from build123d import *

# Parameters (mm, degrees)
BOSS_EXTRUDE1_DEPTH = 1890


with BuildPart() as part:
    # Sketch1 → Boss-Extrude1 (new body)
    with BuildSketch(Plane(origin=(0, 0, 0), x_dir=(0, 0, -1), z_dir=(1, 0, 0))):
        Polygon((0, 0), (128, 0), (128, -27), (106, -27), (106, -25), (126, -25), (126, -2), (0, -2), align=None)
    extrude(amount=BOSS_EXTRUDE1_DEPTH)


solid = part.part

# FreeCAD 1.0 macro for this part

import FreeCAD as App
import Part
import Sketcher
from FreeCAD import Vector

doc = App.newDocument("Part")
body = doc.addObject("PartDesign::Body", "Body")

# Sketch on YZ plane
sketch1 = doc.addObject("Sketcher::SketchObject", "Sketch")
body.addObject(sketch1)
sketch1.AttachmentSupport = (doc.YZ_Plane, [""])
sketch1.MapMode = "FlatFace"
sketch1.addGeometry([
    Part.LineSegment(Vector(0, -128, 0), Vector(0, 0, 0)),  # 0
    Part.LineSegment(Vector(0, 0, 0), Vector(-2, 0, 0)),  # 1
    Part.LineSegment(Vector(-2, 0, 0), Vector(-2, -126, 0)),  # 2
    Part.LineSegment(Vector(-2, -126, 0), Vector(-25, -126, 0)),  # 3
    Part.LineSegment(Vector(-25, -126, 0), Vector(-25, -106, 0)),  # 4
    Part.LineSegment(Vector(-25, -106, 0), Vector(-27, -106, 0)),  # 5
    Part.LineSegment(Vector(-27, -106, 0), Vector(-27, -128, 0)),  # 6
    Part.LineSegment(Vector(-27, -128, 0), Vector(0, -128, 0)),  # 7
], False)
sketch1.addConstraint([
    Sketcher.Constraint("Coincident", 0, 2, 1, 1),
    Sketcher.Constraint("Coincident", 1, 2, 2, 1),
    Sketcher.Constraint("Coincident", 2, 2, 3, 1),
    Sketcher.Constraint("Coincident", 3, 2, 4, 1),
    Sketcher.Constraint("Coincident", 4, 2, 5, 1),
    Sketcher.Constraint("Coincident", 5, 2, 6, 1),
    Sketcher.Constraint("Coincident", 6, 2, 7, 1),
    Sketcher.Constraint("Coincident", 7, 2, 0, 1),
    Sketcher.Constraint("Vertical", 0),
    Sketcher.Constraint("Horizontal", 1),
    Sketcher.Constraint("Vertical", 2),
    Sketcher.Constraint("Horizontal", 3),
    Sketcher.Constraint("Vertical", 4),
    Sketcher.Constraint("Horizontal", 5),
    Sketcher.Constraint("Vertical", 6),
    Sketcher.Constraint("Horizontal", 7),
    Sketcher.Constraint("Coincident", 0, 2, -1, 1),
    Sketcher.Constraint("Equal", 1, 5),
    Sketcher.Constraint("DistanceX", 1, 2, 1, 1, 2.0),
    Sketcher.Constraint("DistanceX", 3, 2, 3, 1, 23.0),
    Sketcher.Constraint("DistanceY", 0, 1, 0, 2, 128.0),
    Sketcher.Constraint("DistanceY", 2, 2, 2, 1, 126.0),
    Sketcher.Constraint("DistanceY", 4, 1, 4, 2, 20.0),
])
pad1 = doc.addObject("PartDesign::Pad", "Pad")
body.addObject(pad1)
pad1.Profile = sketch1
pad1.Length = 1890

doc.recompute()
